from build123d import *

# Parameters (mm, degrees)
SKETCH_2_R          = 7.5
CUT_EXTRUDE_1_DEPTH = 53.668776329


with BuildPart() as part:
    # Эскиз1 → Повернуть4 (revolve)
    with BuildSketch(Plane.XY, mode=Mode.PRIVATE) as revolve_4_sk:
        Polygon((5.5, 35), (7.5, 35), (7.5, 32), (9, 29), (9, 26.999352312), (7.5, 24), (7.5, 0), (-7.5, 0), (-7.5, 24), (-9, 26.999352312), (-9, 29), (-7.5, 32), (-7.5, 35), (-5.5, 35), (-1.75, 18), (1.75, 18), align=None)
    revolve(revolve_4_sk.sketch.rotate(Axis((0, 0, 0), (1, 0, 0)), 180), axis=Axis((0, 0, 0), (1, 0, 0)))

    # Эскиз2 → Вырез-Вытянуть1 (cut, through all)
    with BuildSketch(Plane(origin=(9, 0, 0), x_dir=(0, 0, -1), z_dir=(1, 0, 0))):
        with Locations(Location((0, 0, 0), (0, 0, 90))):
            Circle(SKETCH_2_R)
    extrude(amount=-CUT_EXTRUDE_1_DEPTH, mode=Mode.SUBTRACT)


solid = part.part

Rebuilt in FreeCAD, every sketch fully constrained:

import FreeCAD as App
import Part
import Sketcher

V = App.Vector
Q = App.Units.Quantity

doc = App.newDocument("Part")
body = doc.addObject("PartDesign::Body", "Body")

# Sketch on XY plane
sketch1 = doc.addObject("Sketcher::SketchObject", "Sketch")
body.addObject(sketch1)
sketch1.AttachmentSupport = (doc.XY_Plane, [""])
sketch1.MapMode = "FlatFace"
sketch1.addGeometry([
    Part.LineSegment(V(7.5, 35, 0), V(5.5, 35, 0)),  # 0
    Part.LineSegment(V(5.5, 35, 0), V(1.8, 18, 0)),  # 1
    Part.LineSegment(V(1.8, 18, 0), V(-1.8, 18, 0)),  # 2
    Part.LineSegment(V(-1.8, 18, 0), V(-5.5, 35, 0)),  # 3
    Part.LineSegment(V(-5.5, 35, 0), V(-7.5, 35, 0)),  # 4
    Part.LineSegment(V(-7.5, 35, 0), V(-7.5, 32, 0)),  # 5
    Part.LineSegment(V(-7.5, 32, 0), V(-9, 29, 0)),  # 6
    Part.LineSegment(V(-9, 29, 0), V(-9, 27, 0)),  # 7
    Part.LineSegment(V(-9, 27, 0), V(-7.5, 24, 0)),  # 8
    Part.LineSegment(V(-7.5, 24, 0), V(-7.5, 0, 0)),  # 9
    Part.LineSegment(V(-7.5, 0, 0), V(7.5, 0, 0)),  # 10
    Part.LineSegment(V(7.5, 0, 0), V(7.5, 24, 0)),  # 11
    Part.LineSegment(V(7.5, 24, 0), V(9, 27, 0)),  # 12
    Part.LineSegment(V(9, 27, 0), V(9, 29, 0)),  # 13
    Part.LineSegment(V(9, 29, 0), V(7.5, 32, 0)),  # 14
    Part.LineSegment(V(7.5, 32, 0), V(7.5, 35, 0)),  # 15
], False)
sketch1.addConstraint([
    Sketcher.Constraint("Coincident", 0, 2, 1, 1),
    Sketcher.Constraint("Coincident", 1, 2, 2, 1),
    Sketcher.Constraint("Coincident", 2, 2, 3, 1),
    Sketcher.Constraint("Coincident", 3, 2, 4, 1),
    Sketcher.Constraint("Coincident", 4, 2, 5, 1),
    Sketcher.Constraint("Coincident", 5, 2, 6, 1),
    Sketcher.Constraint("Coincident", 6, 2, 7, 1),
    Sketcher.Constraint("Coincident", 7, 2, 8, 1),
    Sketcher.Constraint("Coincident", 8, 2, 9, 1),
    Sketcher.Constraint("Coincident", 9, 2, 10, 1),
    Sketcher.Constraint("Coincident", 10, 2, 11, 1),
    Sketcher.Constraint("Coincident", 11, 2, 12, 1),
    Sketcher.Constraint("Coincident", 12, 2, 13, 1),
    Sketcher.Constraint("Coincident", 13, 2, 14, 1),
    Sketcher.Constraint("Coincident", 14, 2, 15, 1),
    Sketcher.Constraint("Coincident", 15, 2, 0, 1),
    Sketcher.Constraint("Horizontal", 0),
    Sketcher.Constraint("Horizontal", 2),
    Sketcher.Constraint("Horizontal", 4),
    Sketcher.Constraint("Vertical", 5),
    Sketcher.Constraint("Vertical", 7),
    Sketcher.Constraint("Vertical", 9),
    Sketcher.Constraint("Horizontal", 10),
    Sketcher.Constraint("Vertical", 11),
    Sketcher.Constraint("Vertical", 13),
    Sketcher.Constraint("Vertical", 15),
    Sketcher.Constraint("Symmetric", 9, 2, 10, 2, -1, 1),
    Sketcher.Constraint("Symmetric", 0, 2, 3, 2, -2),
    Sketcher.Constraint("Symmetric", 7, 2, 12, 2, -2),
    Sketcher.Constraint("Symmetric", 5, 2, 14, 2, -2),
    Sketcher.Constraint("Horizontal", 8, 2, 11, 2),
    Sketcher.Constraint("Horizontal", 6, 2, 13, 2),
    Sketcher.Constraint("Vertical", 5, 2, 8, 2),
    Sketcher.Constraint("Equal", 1, 3),
    Sketcher.Constraint("DistanceX", 0, 2, 0, 1, Q("2 mm")),
    Sketcher.Constraint("DistanceX", 10, 1, 10, 2, Q("15 mm")),
    Sketcher.Constraint("DistanceY", 5, 2, 5, 1, Q("3 mm")),
    Sketcher.Constraint("DistanceY", 9, 2, 9, 1, Q("24 mm")),
    Sketcher.Constraint("DistanceX", 2, 2, 2, 1, Q("3.5 mm")),
    Sketcher.Constraint("DistanceY", -1, 1, 0, 2, Q("35 mm")),
    Sketcher.Constraint("DistanceY", -1, 1, 1, 2, Q("18 mm")),
    Sketcher.Constraint("DistanceX", 6, 2, -1, 1, Q("9 mm")),
    Sketcher.Constraint("DistanceY", -1, 1, 6, 2, Q("29 mm")),
    Sketcher.Constraint("Angle", 8, Q("-63.43 deg")),
])
revolution = doc.addObject("PartDesign::Revolution", "Revolution")
body.addObject(revolution)
revolution.Profile = sketch1
revolution.ReferenceAxis = (sketch1, ["H_Axis"])
revolution.Angle = 360

# Sketch on YZ plane
sketch2 = doc.addObject("Sketcher::SketchObject", "Sketch001")
body.addObject(sketch2)
sketch2.AttachmentSupport = (doc.YZ_Plane, [""])
sketch2.MapMode = "FlatFace"
sketch2.AttachmentOffset = App.Placement(V(0, 0, 9), App.Rotation())
sketch2.addGeometry(Part.Circle(V(0, 0, 0), V(0, 0, 1), 8), False)
sketch2.addConstraint([
    Sketcher.Constraint("Coincident", 0, 3, -1, 1),
    Sketcher.Constraint("Diameter", 0, Q("15 mm")),
])
pocket1 = doc.addObject("PartDesign::Pocket", "Pocket")
body.addObject(pocket1)
pocket1.Profile = sketch2
pocket1.Type = "ThroughAll"

doc.recompute()
